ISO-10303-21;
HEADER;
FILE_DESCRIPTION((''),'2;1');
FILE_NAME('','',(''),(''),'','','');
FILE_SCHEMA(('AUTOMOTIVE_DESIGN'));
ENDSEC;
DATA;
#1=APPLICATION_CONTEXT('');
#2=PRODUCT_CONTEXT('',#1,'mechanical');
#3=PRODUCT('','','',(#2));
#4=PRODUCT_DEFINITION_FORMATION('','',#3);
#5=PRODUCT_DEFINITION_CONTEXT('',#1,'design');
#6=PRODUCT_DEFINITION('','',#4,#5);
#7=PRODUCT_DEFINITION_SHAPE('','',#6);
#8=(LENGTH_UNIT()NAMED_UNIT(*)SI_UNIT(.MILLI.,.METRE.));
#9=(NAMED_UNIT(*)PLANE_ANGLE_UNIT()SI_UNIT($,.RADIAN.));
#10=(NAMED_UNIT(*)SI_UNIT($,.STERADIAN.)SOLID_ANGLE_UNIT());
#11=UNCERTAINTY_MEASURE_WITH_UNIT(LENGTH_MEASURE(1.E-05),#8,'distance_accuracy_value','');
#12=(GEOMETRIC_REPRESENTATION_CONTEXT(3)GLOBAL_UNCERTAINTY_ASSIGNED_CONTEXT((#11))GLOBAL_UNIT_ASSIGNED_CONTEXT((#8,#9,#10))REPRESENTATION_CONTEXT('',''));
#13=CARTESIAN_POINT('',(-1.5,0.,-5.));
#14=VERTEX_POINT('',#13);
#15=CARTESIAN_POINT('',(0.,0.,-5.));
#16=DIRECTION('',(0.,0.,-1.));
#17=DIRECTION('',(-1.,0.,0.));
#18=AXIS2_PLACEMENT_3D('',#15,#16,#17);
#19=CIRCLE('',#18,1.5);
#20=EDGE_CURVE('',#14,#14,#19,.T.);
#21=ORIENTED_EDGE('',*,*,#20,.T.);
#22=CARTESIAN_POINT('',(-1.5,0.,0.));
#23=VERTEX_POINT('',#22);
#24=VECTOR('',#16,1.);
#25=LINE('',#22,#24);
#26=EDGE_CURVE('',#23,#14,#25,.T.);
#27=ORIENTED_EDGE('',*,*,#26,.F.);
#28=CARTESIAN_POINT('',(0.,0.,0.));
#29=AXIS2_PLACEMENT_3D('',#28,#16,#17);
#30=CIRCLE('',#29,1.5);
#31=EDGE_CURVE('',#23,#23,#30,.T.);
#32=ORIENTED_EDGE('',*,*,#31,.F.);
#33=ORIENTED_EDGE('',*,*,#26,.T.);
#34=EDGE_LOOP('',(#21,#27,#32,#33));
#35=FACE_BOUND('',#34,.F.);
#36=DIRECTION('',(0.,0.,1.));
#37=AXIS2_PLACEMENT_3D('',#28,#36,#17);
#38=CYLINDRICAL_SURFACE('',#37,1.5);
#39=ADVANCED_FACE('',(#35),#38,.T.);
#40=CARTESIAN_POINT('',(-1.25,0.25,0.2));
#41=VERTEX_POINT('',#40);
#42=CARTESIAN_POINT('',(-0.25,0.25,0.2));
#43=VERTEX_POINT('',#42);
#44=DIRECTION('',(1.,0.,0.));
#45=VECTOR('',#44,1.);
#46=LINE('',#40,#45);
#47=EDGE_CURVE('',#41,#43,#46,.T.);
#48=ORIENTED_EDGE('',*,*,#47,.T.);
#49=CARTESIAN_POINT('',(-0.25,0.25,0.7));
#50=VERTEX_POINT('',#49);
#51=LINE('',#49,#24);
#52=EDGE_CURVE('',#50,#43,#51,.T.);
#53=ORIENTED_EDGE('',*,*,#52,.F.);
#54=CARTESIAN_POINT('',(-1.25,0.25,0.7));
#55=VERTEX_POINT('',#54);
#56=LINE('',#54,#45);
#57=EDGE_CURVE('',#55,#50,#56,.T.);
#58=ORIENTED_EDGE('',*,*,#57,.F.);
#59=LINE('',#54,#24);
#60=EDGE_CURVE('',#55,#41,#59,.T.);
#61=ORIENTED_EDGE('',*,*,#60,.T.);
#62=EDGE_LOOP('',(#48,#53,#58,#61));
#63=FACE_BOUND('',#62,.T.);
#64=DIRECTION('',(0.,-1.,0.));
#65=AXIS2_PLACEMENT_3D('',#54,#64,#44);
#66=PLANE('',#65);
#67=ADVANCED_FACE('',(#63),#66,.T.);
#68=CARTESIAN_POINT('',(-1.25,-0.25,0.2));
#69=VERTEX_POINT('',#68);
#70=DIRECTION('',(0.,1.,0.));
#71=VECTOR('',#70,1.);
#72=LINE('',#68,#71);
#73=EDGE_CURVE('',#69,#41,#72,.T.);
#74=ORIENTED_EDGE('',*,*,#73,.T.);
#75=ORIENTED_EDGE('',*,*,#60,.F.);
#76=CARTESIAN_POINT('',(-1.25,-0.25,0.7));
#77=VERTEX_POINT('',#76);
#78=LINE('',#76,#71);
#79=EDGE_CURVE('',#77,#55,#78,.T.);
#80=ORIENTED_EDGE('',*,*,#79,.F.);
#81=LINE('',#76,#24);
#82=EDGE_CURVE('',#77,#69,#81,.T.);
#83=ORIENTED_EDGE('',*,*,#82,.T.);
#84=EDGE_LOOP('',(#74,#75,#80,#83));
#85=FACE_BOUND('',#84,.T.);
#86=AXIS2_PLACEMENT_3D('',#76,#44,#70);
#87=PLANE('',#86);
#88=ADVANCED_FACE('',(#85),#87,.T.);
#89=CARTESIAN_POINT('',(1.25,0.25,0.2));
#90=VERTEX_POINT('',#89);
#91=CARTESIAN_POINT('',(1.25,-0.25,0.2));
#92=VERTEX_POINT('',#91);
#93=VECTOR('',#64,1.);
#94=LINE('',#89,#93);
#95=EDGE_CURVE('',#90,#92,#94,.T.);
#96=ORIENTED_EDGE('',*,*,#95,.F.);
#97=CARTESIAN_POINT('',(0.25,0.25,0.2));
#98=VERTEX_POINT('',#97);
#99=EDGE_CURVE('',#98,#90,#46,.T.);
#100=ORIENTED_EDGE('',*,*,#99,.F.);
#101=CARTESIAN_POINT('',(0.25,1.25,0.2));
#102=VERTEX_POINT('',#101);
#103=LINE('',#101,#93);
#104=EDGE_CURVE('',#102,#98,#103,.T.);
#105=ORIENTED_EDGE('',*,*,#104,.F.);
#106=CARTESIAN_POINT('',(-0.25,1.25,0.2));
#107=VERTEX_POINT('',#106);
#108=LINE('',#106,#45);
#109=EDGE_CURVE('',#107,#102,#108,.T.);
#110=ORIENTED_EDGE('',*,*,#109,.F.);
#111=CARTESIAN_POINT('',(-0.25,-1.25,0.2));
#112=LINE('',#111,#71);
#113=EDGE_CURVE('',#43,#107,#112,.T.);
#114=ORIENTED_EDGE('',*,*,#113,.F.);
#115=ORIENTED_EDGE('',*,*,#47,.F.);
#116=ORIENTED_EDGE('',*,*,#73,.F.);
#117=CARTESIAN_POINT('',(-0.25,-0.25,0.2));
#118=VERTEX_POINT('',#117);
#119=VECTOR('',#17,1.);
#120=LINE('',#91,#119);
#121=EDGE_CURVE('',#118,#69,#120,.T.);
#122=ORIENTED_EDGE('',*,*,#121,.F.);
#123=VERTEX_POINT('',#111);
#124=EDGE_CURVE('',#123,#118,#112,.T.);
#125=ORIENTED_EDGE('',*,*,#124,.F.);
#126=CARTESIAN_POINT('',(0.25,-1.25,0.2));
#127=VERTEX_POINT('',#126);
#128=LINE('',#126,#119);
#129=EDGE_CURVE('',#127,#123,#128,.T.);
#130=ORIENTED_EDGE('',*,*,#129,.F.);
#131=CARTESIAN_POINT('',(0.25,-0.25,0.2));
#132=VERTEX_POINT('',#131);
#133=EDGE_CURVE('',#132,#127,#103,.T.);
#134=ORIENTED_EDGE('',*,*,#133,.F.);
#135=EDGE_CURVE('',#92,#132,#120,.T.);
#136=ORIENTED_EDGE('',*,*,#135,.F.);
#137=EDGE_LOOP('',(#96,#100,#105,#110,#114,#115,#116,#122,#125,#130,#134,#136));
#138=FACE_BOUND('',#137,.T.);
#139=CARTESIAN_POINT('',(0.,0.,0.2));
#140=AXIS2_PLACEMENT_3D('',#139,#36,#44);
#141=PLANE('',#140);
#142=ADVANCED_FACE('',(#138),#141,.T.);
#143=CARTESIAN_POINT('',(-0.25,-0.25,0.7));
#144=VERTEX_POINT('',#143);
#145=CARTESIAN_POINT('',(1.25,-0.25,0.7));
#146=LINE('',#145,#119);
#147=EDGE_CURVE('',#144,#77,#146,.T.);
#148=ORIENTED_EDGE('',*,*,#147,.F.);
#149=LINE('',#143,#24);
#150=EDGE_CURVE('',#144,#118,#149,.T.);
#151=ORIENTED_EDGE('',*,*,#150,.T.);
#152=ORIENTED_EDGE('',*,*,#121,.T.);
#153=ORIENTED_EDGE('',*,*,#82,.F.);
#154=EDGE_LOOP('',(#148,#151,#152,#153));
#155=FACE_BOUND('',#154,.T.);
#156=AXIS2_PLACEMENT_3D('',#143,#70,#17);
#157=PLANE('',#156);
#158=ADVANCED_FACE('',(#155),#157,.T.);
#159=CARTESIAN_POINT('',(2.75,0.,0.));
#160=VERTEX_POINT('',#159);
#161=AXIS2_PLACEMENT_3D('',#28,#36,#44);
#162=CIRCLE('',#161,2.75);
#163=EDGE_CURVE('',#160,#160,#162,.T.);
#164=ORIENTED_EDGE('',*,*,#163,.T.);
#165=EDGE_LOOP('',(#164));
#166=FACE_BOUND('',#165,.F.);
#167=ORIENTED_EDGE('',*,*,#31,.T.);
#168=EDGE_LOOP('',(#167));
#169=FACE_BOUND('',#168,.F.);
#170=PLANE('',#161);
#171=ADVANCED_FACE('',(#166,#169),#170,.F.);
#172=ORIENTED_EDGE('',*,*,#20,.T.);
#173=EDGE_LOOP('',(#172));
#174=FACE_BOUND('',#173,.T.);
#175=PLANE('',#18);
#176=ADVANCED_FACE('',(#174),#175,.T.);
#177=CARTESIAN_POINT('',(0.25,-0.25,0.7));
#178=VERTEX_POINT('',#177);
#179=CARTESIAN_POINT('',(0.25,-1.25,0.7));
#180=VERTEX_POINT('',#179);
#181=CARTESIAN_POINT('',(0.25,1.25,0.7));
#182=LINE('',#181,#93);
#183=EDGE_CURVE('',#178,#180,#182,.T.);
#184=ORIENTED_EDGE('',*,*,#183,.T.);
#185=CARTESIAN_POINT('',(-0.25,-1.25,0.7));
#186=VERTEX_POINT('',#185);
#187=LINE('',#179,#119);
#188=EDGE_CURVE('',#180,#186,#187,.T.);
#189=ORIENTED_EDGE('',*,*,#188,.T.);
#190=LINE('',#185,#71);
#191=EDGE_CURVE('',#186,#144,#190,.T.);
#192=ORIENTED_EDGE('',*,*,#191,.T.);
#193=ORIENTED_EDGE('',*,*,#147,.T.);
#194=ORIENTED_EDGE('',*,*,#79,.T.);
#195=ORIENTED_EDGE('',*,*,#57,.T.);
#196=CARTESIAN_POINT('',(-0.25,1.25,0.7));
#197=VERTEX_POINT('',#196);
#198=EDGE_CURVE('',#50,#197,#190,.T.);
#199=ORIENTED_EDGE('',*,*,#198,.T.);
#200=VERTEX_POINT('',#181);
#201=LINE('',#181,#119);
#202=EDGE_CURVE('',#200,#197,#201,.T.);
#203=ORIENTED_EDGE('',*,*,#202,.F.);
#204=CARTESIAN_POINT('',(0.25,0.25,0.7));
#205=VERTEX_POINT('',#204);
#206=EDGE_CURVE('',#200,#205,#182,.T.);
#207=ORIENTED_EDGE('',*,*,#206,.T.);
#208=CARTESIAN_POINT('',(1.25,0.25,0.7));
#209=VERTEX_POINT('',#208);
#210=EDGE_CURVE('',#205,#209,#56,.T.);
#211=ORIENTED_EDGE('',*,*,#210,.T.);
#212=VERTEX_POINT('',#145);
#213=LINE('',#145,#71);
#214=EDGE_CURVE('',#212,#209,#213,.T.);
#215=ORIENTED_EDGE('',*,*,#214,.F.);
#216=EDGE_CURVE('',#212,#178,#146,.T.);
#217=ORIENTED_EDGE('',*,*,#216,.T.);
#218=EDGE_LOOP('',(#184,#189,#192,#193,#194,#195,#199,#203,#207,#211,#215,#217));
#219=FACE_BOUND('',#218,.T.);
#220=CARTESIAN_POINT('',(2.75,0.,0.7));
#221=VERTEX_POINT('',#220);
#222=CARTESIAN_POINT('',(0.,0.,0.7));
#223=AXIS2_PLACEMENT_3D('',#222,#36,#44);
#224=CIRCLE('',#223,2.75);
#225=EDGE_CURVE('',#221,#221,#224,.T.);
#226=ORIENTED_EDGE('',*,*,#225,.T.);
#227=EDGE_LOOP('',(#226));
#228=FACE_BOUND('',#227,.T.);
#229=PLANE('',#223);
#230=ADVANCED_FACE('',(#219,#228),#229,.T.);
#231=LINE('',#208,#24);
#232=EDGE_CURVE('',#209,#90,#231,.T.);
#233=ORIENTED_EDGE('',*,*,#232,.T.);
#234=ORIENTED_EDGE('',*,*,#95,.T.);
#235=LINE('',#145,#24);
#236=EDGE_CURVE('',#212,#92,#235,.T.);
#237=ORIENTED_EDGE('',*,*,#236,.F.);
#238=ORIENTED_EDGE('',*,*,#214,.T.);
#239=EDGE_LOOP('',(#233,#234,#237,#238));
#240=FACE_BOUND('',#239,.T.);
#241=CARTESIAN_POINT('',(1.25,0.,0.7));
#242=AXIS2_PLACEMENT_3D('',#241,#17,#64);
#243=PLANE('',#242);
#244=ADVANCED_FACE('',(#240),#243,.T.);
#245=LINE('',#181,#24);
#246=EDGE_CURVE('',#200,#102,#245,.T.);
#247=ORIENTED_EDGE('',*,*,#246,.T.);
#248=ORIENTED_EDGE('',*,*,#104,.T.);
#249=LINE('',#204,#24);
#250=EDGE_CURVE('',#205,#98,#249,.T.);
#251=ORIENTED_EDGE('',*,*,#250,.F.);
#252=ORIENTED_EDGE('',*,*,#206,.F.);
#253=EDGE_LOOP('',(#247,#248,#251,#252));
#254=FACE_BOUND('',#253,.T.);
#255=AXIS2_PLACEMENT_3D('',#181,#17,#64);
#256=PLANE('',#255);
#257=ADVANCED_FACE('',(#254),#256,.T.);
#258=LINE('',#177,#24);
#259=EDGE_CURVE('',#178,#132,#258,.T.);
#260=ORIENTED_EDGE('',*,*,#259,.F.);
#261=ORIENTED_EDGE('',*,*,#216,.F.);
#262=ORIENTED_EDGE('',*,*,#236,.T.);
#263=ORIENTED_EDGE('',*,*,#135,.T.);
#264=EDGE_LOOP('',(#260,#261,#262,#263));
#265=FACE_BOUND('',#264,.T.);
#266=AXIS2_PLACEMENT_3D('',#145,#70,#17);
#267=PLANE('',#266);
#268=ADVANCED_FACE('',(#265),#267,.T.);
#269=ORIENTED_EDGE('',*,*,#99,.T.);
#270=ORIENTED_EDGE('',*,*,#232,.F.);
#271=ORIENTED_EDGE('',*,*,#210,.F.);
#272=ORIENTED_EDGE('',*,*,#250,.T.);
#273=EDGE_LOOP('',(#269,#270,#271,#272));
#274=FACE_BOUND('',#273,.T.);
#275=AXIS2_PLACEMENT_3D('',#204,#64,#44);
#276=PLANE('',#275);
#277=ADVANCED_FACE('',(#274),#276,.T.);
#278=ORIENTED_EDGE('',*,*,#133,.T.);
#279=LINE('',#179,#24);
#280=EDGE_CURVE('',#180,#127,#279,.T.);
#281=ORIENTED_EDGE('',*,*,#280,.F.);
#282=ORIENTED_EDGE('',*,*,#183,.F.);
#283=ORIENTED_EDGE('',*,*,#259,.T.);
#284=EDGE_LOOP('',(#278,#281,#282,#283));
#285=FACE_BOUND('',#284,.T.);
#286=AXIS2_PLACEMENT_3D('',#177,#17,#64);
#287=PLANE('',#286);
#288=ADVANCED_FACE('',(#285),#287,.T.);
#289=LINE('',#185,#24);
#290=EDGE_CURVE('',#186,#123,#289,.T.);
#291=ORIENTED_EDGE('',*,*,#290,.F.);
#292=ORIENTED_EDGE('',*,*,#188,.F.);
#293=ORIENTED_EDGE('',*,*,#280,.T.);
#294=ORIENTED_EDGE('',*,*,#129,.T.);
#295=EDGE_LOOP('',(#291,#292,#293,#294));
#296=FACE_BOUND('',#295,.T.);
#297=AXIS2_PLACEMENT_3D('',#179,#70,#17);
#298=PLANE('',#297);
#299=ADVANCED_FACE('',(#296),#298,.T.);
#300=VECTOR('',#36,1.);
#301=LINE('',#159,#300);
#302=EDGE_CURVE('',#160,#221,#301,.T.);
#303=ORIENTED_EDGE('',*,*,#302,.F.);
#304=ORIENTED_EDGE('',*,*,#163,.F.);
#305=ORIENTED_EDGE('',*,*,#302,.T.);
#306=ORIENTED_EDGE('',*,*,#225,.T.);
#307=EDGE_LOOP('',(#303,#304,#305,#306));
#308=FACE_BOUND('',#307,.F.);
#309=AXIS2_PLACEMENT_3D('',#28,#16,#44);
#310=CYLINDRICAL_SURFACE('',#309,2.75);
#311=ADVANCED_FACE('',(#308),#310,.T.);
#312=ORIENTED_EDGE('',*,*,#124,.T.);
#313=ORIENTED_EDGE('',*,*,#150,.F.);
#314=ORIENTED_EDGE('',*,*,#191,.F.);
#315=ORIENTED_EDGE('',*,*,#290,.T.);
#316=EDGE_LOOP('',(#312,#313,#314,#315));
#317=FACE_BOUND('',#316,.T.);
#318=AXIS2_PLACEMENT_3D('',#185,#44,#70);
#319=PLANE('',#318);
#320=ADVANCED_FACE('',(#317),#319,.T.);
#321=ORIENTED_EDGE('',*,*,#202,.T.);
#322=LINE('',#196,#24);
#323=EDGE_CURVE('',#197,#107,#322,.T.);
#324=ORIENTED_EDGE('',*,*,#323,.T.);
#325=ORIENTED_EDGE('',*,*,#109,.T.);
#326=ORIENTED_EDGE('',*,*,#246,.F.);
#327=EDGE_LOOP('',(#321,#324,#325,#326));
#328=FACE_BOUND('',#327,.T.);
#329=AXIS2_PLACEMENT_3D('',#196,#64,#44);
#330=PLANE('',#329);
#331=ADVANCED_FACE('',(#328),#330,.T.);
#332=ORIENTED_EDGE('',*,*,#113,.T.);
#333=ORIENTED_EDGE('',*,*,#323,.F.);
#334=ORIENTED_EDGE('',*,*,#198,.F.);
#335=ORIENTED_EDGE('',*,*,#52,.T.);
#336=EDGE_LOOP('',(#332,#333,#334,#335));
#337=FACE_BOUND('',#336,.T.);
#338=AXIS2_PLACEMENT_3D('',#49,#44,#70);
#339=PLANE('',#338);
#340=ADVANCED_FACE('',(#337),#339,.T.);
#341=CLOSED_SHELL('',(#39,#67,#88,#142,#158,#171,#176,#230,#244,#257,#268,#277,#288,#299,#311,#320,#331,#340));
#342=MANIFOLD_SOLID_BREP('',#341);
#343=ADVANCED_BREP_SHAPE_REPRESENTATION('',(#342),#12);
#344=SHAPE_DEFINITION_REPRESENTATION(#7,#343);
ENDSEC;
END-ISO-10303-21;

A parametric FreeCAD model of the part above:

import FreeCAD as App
import Part
import Sketcher

V = App.Vector
Q = App.Units.Quantity

doc = App.newDocument("Part")
body = doc.addObject("PartDesign::Body", "Body")

sketch1 = body.newObject("Sketcher::SketchObject", "Sketch")
sketch1.AttachmentSupport = (doc.getObject("XY_Plane"), [""])
sketch1.MapMode = "FlatFace"
sketch1.addGeometry(Part.Circle(V(0, 0, 0), V(0, 0, 1), 2.8), False)
sketch1.addConstraint(Sketcher.Constraint("Coincident", 0, 3, -1, 1))
sketch1.addConstraint(Sketcher.Constraint("Diameter", 0, Q("5.5 mm")))
pad1 = body.newObject("PartDesign::Pad", "Pad")
pad1.Profile = sketch1
pad1.Length = 0.7

sketch2 = body.newObject("Sketcher::SketchObject", "Sketch001")
sketch2.AttachmentSupport = (doc.getObject("XY_Plane"), [""])
sketch2.MapMode = "FlatFace"
sketch2.addGeometry(Part.Circle(V(0, 0, 0), V(0, 0, 1), 1.5), False)
sketch2.addConstraint(Sketcher.Constraint("Coincident", 0, 3, -1, 1))
sketch2.addConstraint(Sketcher.Constraint("Diameter", 0, Q("3 mm")))
pad2 = body.newObject("PartDesign::Pad", "Pad001")
pad2.Profile = sketch2
pad2.Length = 5
pad2.Reversed = True

sketch3 = body.newObject("Sketcher::SketchObject", "Sketch002")
sketch3.AttachmentSupport = (doc.getObject("XY_Plane"), [""])
sketch3.MapMode = "FlatFace"
sketch3.AttachmentOffset = App.Placement(V(0, 0, 0.7), App.Rotation())
sketch3.addGeometry(Part.LineSegment(V(-0.2, 0.2, 0), V(-1.2, 0.2, 0)), False)
sketch3.addGeometry(Part.LineSegment(V(-1.2, 0.2, 0), V(-1.2, -0.2, 0)), False)
sketch3.addGeometry(Part.LineSegment(V(-1.2, -0.2, 0), V(-0.2, -0.2, 0)), False)
sketch3.addGeometry(Part.LineSegment(V(-0.2, -0.2, 0), V(-0.2, -1.2, 0)), False)
sketch3.addGeometry(Part.LineSegment(V(-0.2, -1.2, 0), V(0.2, -1.2, 0)), False)
sketch3.addGeometry(Part.LineSegment(V(0.2, -1.2, 0), V(0.2, -0.2, 0)), False)
sketch3.addGeometry(Part.LineSegment(V(0.2, -0.2, 0), V(1.2, -0.2, 0)), False)
sketch3.addGeometry(Part.LineSegment(V(1.2, -0.2, 0), V(1.2, 0.2, 0)), False)
sketch3.addGeometry(Part.LineSegment(V(1.2, 0.2, 0), V(0.2, 0.2, 0)), False)
sketch3.addGeometry(Part.LineSegment(V(0.2, 0.2, 0), V(0.2, 1.2, 0)), False)
sketch3.addGeometry(Part.LineSegment(V(0.2, 1.2, 0), V(-0.2, 1.2, 0)), False)
sketch3.addGeometry(Part.LineSegment(V(-0.2, 1.2, 0), V(-0.2, 0.2, 0)), False)
sketch3.addConstraint(Sketcher.Constraint("Coincident", 0, 2, 1, 1))
sketch3.addConstraint(Sketcher.Constraint("Coincident", 1, 2, 2, 1))
sketch3.addConstraint(Sketcher.Constraint("Coincident", 2, 2, 3, 1))
sketch3.addConstraint(Sketcher.Constraint("Coincident", 3, 2, 4, 1))
sketch3.addConstraint(Sketcher.Constraint("Coincident", 4, 2, 5, 1))
sketch3.addConstraint(Sketcher.Constraint("Coincident", 5, 2, 6, 1))
sketch3.addConstraint(Sketcher.Constraint("Coincident", 6, 2, 7, 1))
sketch3.addConstraint(Sketcher.Constraint("Coincident", 7, 2, 8, 1))
sketch3.addConstraint(Sketcher.Constraint("Coincident", 8, 2, 9, 1))
sketch3.addConstraint(Sketcher.Constraint("Coincident", 9, 2, 10, 1))
sketch3.addConstraint(Sketcher.Constraint("Coincident", 10, 2, 11, 1))
sketch3.addConstraint(Sketcher.Constraint("Coincident", 11, 2, 0, 1))
sketch3.addConstraint(Sketcher.Constraint("Horizontal", 0))
sketch3.addConstraint(Sketcher.Constraint("Vertical", 1))
sketch3.addConstraint(Sketcher.Constraint("Horizontal", 2))
sketch3.addConstraint(Sketcher.Constraint("Vertical", 3))
sketch3.addConstraint(Sketcher.Constraint("Horizontal", 4))
sketch3.addConstraint(Sketcher.Constraint("Vertical", 5))
sketch3.addConstraint(Sketcher.Constraint("Horizontal", 6))
sketch3.addConstraint(Sketcher.Constraint("Vertical", 7))
sketch3.addConstraint(Sketcher.Constraint("Horizontal", 8))
sketch3.addConstraint(Sketcher.Constraint("Vertical", 9))
sketch3.addConstraint(Sketcher.Constraint("Horizontal", 10))
sketch3.addConstraint(Sketcher.Constraint("Vertical", 11))
sketch3.addConstraint(Sketcher.Constraint("Symmetric", 0, 2, 6, 2, -1, 1))
sketch3.addConstraint(Sketcher.Constraint("Symmetric", 2, 2, 8, 2, -1, 1))
sketch3.addConstraint(Sketcher.Constraint("Symmetric", 4, 2, 10, 2, -1, 1))
sketch3.addConstraint(Sketcher.Constraint("Symmetric", 2, 2, 5, 2, -2))
sketch3.addConstraint(Sketcher.Constraint("Equal", 10, 1))
sketch3.addConstraint(Sketcher.Constraint("Equal", 8, 3))
sketch3.addConstraint(Sketcher.Constraint("DistanceX", 4, 1, 4, 2, Q("0.5 mm")))
sketch3.addConstraint(Sketcher.Constraint("DistanceX", 1, 2, 6, 2, Q("2.5 mm")))
pocket1 = body.newObject("PartDesign::Pocket", "Pocket")
pocket1.Profile = sketch3
pocket1.Length = 0.5

doc.recompute()
